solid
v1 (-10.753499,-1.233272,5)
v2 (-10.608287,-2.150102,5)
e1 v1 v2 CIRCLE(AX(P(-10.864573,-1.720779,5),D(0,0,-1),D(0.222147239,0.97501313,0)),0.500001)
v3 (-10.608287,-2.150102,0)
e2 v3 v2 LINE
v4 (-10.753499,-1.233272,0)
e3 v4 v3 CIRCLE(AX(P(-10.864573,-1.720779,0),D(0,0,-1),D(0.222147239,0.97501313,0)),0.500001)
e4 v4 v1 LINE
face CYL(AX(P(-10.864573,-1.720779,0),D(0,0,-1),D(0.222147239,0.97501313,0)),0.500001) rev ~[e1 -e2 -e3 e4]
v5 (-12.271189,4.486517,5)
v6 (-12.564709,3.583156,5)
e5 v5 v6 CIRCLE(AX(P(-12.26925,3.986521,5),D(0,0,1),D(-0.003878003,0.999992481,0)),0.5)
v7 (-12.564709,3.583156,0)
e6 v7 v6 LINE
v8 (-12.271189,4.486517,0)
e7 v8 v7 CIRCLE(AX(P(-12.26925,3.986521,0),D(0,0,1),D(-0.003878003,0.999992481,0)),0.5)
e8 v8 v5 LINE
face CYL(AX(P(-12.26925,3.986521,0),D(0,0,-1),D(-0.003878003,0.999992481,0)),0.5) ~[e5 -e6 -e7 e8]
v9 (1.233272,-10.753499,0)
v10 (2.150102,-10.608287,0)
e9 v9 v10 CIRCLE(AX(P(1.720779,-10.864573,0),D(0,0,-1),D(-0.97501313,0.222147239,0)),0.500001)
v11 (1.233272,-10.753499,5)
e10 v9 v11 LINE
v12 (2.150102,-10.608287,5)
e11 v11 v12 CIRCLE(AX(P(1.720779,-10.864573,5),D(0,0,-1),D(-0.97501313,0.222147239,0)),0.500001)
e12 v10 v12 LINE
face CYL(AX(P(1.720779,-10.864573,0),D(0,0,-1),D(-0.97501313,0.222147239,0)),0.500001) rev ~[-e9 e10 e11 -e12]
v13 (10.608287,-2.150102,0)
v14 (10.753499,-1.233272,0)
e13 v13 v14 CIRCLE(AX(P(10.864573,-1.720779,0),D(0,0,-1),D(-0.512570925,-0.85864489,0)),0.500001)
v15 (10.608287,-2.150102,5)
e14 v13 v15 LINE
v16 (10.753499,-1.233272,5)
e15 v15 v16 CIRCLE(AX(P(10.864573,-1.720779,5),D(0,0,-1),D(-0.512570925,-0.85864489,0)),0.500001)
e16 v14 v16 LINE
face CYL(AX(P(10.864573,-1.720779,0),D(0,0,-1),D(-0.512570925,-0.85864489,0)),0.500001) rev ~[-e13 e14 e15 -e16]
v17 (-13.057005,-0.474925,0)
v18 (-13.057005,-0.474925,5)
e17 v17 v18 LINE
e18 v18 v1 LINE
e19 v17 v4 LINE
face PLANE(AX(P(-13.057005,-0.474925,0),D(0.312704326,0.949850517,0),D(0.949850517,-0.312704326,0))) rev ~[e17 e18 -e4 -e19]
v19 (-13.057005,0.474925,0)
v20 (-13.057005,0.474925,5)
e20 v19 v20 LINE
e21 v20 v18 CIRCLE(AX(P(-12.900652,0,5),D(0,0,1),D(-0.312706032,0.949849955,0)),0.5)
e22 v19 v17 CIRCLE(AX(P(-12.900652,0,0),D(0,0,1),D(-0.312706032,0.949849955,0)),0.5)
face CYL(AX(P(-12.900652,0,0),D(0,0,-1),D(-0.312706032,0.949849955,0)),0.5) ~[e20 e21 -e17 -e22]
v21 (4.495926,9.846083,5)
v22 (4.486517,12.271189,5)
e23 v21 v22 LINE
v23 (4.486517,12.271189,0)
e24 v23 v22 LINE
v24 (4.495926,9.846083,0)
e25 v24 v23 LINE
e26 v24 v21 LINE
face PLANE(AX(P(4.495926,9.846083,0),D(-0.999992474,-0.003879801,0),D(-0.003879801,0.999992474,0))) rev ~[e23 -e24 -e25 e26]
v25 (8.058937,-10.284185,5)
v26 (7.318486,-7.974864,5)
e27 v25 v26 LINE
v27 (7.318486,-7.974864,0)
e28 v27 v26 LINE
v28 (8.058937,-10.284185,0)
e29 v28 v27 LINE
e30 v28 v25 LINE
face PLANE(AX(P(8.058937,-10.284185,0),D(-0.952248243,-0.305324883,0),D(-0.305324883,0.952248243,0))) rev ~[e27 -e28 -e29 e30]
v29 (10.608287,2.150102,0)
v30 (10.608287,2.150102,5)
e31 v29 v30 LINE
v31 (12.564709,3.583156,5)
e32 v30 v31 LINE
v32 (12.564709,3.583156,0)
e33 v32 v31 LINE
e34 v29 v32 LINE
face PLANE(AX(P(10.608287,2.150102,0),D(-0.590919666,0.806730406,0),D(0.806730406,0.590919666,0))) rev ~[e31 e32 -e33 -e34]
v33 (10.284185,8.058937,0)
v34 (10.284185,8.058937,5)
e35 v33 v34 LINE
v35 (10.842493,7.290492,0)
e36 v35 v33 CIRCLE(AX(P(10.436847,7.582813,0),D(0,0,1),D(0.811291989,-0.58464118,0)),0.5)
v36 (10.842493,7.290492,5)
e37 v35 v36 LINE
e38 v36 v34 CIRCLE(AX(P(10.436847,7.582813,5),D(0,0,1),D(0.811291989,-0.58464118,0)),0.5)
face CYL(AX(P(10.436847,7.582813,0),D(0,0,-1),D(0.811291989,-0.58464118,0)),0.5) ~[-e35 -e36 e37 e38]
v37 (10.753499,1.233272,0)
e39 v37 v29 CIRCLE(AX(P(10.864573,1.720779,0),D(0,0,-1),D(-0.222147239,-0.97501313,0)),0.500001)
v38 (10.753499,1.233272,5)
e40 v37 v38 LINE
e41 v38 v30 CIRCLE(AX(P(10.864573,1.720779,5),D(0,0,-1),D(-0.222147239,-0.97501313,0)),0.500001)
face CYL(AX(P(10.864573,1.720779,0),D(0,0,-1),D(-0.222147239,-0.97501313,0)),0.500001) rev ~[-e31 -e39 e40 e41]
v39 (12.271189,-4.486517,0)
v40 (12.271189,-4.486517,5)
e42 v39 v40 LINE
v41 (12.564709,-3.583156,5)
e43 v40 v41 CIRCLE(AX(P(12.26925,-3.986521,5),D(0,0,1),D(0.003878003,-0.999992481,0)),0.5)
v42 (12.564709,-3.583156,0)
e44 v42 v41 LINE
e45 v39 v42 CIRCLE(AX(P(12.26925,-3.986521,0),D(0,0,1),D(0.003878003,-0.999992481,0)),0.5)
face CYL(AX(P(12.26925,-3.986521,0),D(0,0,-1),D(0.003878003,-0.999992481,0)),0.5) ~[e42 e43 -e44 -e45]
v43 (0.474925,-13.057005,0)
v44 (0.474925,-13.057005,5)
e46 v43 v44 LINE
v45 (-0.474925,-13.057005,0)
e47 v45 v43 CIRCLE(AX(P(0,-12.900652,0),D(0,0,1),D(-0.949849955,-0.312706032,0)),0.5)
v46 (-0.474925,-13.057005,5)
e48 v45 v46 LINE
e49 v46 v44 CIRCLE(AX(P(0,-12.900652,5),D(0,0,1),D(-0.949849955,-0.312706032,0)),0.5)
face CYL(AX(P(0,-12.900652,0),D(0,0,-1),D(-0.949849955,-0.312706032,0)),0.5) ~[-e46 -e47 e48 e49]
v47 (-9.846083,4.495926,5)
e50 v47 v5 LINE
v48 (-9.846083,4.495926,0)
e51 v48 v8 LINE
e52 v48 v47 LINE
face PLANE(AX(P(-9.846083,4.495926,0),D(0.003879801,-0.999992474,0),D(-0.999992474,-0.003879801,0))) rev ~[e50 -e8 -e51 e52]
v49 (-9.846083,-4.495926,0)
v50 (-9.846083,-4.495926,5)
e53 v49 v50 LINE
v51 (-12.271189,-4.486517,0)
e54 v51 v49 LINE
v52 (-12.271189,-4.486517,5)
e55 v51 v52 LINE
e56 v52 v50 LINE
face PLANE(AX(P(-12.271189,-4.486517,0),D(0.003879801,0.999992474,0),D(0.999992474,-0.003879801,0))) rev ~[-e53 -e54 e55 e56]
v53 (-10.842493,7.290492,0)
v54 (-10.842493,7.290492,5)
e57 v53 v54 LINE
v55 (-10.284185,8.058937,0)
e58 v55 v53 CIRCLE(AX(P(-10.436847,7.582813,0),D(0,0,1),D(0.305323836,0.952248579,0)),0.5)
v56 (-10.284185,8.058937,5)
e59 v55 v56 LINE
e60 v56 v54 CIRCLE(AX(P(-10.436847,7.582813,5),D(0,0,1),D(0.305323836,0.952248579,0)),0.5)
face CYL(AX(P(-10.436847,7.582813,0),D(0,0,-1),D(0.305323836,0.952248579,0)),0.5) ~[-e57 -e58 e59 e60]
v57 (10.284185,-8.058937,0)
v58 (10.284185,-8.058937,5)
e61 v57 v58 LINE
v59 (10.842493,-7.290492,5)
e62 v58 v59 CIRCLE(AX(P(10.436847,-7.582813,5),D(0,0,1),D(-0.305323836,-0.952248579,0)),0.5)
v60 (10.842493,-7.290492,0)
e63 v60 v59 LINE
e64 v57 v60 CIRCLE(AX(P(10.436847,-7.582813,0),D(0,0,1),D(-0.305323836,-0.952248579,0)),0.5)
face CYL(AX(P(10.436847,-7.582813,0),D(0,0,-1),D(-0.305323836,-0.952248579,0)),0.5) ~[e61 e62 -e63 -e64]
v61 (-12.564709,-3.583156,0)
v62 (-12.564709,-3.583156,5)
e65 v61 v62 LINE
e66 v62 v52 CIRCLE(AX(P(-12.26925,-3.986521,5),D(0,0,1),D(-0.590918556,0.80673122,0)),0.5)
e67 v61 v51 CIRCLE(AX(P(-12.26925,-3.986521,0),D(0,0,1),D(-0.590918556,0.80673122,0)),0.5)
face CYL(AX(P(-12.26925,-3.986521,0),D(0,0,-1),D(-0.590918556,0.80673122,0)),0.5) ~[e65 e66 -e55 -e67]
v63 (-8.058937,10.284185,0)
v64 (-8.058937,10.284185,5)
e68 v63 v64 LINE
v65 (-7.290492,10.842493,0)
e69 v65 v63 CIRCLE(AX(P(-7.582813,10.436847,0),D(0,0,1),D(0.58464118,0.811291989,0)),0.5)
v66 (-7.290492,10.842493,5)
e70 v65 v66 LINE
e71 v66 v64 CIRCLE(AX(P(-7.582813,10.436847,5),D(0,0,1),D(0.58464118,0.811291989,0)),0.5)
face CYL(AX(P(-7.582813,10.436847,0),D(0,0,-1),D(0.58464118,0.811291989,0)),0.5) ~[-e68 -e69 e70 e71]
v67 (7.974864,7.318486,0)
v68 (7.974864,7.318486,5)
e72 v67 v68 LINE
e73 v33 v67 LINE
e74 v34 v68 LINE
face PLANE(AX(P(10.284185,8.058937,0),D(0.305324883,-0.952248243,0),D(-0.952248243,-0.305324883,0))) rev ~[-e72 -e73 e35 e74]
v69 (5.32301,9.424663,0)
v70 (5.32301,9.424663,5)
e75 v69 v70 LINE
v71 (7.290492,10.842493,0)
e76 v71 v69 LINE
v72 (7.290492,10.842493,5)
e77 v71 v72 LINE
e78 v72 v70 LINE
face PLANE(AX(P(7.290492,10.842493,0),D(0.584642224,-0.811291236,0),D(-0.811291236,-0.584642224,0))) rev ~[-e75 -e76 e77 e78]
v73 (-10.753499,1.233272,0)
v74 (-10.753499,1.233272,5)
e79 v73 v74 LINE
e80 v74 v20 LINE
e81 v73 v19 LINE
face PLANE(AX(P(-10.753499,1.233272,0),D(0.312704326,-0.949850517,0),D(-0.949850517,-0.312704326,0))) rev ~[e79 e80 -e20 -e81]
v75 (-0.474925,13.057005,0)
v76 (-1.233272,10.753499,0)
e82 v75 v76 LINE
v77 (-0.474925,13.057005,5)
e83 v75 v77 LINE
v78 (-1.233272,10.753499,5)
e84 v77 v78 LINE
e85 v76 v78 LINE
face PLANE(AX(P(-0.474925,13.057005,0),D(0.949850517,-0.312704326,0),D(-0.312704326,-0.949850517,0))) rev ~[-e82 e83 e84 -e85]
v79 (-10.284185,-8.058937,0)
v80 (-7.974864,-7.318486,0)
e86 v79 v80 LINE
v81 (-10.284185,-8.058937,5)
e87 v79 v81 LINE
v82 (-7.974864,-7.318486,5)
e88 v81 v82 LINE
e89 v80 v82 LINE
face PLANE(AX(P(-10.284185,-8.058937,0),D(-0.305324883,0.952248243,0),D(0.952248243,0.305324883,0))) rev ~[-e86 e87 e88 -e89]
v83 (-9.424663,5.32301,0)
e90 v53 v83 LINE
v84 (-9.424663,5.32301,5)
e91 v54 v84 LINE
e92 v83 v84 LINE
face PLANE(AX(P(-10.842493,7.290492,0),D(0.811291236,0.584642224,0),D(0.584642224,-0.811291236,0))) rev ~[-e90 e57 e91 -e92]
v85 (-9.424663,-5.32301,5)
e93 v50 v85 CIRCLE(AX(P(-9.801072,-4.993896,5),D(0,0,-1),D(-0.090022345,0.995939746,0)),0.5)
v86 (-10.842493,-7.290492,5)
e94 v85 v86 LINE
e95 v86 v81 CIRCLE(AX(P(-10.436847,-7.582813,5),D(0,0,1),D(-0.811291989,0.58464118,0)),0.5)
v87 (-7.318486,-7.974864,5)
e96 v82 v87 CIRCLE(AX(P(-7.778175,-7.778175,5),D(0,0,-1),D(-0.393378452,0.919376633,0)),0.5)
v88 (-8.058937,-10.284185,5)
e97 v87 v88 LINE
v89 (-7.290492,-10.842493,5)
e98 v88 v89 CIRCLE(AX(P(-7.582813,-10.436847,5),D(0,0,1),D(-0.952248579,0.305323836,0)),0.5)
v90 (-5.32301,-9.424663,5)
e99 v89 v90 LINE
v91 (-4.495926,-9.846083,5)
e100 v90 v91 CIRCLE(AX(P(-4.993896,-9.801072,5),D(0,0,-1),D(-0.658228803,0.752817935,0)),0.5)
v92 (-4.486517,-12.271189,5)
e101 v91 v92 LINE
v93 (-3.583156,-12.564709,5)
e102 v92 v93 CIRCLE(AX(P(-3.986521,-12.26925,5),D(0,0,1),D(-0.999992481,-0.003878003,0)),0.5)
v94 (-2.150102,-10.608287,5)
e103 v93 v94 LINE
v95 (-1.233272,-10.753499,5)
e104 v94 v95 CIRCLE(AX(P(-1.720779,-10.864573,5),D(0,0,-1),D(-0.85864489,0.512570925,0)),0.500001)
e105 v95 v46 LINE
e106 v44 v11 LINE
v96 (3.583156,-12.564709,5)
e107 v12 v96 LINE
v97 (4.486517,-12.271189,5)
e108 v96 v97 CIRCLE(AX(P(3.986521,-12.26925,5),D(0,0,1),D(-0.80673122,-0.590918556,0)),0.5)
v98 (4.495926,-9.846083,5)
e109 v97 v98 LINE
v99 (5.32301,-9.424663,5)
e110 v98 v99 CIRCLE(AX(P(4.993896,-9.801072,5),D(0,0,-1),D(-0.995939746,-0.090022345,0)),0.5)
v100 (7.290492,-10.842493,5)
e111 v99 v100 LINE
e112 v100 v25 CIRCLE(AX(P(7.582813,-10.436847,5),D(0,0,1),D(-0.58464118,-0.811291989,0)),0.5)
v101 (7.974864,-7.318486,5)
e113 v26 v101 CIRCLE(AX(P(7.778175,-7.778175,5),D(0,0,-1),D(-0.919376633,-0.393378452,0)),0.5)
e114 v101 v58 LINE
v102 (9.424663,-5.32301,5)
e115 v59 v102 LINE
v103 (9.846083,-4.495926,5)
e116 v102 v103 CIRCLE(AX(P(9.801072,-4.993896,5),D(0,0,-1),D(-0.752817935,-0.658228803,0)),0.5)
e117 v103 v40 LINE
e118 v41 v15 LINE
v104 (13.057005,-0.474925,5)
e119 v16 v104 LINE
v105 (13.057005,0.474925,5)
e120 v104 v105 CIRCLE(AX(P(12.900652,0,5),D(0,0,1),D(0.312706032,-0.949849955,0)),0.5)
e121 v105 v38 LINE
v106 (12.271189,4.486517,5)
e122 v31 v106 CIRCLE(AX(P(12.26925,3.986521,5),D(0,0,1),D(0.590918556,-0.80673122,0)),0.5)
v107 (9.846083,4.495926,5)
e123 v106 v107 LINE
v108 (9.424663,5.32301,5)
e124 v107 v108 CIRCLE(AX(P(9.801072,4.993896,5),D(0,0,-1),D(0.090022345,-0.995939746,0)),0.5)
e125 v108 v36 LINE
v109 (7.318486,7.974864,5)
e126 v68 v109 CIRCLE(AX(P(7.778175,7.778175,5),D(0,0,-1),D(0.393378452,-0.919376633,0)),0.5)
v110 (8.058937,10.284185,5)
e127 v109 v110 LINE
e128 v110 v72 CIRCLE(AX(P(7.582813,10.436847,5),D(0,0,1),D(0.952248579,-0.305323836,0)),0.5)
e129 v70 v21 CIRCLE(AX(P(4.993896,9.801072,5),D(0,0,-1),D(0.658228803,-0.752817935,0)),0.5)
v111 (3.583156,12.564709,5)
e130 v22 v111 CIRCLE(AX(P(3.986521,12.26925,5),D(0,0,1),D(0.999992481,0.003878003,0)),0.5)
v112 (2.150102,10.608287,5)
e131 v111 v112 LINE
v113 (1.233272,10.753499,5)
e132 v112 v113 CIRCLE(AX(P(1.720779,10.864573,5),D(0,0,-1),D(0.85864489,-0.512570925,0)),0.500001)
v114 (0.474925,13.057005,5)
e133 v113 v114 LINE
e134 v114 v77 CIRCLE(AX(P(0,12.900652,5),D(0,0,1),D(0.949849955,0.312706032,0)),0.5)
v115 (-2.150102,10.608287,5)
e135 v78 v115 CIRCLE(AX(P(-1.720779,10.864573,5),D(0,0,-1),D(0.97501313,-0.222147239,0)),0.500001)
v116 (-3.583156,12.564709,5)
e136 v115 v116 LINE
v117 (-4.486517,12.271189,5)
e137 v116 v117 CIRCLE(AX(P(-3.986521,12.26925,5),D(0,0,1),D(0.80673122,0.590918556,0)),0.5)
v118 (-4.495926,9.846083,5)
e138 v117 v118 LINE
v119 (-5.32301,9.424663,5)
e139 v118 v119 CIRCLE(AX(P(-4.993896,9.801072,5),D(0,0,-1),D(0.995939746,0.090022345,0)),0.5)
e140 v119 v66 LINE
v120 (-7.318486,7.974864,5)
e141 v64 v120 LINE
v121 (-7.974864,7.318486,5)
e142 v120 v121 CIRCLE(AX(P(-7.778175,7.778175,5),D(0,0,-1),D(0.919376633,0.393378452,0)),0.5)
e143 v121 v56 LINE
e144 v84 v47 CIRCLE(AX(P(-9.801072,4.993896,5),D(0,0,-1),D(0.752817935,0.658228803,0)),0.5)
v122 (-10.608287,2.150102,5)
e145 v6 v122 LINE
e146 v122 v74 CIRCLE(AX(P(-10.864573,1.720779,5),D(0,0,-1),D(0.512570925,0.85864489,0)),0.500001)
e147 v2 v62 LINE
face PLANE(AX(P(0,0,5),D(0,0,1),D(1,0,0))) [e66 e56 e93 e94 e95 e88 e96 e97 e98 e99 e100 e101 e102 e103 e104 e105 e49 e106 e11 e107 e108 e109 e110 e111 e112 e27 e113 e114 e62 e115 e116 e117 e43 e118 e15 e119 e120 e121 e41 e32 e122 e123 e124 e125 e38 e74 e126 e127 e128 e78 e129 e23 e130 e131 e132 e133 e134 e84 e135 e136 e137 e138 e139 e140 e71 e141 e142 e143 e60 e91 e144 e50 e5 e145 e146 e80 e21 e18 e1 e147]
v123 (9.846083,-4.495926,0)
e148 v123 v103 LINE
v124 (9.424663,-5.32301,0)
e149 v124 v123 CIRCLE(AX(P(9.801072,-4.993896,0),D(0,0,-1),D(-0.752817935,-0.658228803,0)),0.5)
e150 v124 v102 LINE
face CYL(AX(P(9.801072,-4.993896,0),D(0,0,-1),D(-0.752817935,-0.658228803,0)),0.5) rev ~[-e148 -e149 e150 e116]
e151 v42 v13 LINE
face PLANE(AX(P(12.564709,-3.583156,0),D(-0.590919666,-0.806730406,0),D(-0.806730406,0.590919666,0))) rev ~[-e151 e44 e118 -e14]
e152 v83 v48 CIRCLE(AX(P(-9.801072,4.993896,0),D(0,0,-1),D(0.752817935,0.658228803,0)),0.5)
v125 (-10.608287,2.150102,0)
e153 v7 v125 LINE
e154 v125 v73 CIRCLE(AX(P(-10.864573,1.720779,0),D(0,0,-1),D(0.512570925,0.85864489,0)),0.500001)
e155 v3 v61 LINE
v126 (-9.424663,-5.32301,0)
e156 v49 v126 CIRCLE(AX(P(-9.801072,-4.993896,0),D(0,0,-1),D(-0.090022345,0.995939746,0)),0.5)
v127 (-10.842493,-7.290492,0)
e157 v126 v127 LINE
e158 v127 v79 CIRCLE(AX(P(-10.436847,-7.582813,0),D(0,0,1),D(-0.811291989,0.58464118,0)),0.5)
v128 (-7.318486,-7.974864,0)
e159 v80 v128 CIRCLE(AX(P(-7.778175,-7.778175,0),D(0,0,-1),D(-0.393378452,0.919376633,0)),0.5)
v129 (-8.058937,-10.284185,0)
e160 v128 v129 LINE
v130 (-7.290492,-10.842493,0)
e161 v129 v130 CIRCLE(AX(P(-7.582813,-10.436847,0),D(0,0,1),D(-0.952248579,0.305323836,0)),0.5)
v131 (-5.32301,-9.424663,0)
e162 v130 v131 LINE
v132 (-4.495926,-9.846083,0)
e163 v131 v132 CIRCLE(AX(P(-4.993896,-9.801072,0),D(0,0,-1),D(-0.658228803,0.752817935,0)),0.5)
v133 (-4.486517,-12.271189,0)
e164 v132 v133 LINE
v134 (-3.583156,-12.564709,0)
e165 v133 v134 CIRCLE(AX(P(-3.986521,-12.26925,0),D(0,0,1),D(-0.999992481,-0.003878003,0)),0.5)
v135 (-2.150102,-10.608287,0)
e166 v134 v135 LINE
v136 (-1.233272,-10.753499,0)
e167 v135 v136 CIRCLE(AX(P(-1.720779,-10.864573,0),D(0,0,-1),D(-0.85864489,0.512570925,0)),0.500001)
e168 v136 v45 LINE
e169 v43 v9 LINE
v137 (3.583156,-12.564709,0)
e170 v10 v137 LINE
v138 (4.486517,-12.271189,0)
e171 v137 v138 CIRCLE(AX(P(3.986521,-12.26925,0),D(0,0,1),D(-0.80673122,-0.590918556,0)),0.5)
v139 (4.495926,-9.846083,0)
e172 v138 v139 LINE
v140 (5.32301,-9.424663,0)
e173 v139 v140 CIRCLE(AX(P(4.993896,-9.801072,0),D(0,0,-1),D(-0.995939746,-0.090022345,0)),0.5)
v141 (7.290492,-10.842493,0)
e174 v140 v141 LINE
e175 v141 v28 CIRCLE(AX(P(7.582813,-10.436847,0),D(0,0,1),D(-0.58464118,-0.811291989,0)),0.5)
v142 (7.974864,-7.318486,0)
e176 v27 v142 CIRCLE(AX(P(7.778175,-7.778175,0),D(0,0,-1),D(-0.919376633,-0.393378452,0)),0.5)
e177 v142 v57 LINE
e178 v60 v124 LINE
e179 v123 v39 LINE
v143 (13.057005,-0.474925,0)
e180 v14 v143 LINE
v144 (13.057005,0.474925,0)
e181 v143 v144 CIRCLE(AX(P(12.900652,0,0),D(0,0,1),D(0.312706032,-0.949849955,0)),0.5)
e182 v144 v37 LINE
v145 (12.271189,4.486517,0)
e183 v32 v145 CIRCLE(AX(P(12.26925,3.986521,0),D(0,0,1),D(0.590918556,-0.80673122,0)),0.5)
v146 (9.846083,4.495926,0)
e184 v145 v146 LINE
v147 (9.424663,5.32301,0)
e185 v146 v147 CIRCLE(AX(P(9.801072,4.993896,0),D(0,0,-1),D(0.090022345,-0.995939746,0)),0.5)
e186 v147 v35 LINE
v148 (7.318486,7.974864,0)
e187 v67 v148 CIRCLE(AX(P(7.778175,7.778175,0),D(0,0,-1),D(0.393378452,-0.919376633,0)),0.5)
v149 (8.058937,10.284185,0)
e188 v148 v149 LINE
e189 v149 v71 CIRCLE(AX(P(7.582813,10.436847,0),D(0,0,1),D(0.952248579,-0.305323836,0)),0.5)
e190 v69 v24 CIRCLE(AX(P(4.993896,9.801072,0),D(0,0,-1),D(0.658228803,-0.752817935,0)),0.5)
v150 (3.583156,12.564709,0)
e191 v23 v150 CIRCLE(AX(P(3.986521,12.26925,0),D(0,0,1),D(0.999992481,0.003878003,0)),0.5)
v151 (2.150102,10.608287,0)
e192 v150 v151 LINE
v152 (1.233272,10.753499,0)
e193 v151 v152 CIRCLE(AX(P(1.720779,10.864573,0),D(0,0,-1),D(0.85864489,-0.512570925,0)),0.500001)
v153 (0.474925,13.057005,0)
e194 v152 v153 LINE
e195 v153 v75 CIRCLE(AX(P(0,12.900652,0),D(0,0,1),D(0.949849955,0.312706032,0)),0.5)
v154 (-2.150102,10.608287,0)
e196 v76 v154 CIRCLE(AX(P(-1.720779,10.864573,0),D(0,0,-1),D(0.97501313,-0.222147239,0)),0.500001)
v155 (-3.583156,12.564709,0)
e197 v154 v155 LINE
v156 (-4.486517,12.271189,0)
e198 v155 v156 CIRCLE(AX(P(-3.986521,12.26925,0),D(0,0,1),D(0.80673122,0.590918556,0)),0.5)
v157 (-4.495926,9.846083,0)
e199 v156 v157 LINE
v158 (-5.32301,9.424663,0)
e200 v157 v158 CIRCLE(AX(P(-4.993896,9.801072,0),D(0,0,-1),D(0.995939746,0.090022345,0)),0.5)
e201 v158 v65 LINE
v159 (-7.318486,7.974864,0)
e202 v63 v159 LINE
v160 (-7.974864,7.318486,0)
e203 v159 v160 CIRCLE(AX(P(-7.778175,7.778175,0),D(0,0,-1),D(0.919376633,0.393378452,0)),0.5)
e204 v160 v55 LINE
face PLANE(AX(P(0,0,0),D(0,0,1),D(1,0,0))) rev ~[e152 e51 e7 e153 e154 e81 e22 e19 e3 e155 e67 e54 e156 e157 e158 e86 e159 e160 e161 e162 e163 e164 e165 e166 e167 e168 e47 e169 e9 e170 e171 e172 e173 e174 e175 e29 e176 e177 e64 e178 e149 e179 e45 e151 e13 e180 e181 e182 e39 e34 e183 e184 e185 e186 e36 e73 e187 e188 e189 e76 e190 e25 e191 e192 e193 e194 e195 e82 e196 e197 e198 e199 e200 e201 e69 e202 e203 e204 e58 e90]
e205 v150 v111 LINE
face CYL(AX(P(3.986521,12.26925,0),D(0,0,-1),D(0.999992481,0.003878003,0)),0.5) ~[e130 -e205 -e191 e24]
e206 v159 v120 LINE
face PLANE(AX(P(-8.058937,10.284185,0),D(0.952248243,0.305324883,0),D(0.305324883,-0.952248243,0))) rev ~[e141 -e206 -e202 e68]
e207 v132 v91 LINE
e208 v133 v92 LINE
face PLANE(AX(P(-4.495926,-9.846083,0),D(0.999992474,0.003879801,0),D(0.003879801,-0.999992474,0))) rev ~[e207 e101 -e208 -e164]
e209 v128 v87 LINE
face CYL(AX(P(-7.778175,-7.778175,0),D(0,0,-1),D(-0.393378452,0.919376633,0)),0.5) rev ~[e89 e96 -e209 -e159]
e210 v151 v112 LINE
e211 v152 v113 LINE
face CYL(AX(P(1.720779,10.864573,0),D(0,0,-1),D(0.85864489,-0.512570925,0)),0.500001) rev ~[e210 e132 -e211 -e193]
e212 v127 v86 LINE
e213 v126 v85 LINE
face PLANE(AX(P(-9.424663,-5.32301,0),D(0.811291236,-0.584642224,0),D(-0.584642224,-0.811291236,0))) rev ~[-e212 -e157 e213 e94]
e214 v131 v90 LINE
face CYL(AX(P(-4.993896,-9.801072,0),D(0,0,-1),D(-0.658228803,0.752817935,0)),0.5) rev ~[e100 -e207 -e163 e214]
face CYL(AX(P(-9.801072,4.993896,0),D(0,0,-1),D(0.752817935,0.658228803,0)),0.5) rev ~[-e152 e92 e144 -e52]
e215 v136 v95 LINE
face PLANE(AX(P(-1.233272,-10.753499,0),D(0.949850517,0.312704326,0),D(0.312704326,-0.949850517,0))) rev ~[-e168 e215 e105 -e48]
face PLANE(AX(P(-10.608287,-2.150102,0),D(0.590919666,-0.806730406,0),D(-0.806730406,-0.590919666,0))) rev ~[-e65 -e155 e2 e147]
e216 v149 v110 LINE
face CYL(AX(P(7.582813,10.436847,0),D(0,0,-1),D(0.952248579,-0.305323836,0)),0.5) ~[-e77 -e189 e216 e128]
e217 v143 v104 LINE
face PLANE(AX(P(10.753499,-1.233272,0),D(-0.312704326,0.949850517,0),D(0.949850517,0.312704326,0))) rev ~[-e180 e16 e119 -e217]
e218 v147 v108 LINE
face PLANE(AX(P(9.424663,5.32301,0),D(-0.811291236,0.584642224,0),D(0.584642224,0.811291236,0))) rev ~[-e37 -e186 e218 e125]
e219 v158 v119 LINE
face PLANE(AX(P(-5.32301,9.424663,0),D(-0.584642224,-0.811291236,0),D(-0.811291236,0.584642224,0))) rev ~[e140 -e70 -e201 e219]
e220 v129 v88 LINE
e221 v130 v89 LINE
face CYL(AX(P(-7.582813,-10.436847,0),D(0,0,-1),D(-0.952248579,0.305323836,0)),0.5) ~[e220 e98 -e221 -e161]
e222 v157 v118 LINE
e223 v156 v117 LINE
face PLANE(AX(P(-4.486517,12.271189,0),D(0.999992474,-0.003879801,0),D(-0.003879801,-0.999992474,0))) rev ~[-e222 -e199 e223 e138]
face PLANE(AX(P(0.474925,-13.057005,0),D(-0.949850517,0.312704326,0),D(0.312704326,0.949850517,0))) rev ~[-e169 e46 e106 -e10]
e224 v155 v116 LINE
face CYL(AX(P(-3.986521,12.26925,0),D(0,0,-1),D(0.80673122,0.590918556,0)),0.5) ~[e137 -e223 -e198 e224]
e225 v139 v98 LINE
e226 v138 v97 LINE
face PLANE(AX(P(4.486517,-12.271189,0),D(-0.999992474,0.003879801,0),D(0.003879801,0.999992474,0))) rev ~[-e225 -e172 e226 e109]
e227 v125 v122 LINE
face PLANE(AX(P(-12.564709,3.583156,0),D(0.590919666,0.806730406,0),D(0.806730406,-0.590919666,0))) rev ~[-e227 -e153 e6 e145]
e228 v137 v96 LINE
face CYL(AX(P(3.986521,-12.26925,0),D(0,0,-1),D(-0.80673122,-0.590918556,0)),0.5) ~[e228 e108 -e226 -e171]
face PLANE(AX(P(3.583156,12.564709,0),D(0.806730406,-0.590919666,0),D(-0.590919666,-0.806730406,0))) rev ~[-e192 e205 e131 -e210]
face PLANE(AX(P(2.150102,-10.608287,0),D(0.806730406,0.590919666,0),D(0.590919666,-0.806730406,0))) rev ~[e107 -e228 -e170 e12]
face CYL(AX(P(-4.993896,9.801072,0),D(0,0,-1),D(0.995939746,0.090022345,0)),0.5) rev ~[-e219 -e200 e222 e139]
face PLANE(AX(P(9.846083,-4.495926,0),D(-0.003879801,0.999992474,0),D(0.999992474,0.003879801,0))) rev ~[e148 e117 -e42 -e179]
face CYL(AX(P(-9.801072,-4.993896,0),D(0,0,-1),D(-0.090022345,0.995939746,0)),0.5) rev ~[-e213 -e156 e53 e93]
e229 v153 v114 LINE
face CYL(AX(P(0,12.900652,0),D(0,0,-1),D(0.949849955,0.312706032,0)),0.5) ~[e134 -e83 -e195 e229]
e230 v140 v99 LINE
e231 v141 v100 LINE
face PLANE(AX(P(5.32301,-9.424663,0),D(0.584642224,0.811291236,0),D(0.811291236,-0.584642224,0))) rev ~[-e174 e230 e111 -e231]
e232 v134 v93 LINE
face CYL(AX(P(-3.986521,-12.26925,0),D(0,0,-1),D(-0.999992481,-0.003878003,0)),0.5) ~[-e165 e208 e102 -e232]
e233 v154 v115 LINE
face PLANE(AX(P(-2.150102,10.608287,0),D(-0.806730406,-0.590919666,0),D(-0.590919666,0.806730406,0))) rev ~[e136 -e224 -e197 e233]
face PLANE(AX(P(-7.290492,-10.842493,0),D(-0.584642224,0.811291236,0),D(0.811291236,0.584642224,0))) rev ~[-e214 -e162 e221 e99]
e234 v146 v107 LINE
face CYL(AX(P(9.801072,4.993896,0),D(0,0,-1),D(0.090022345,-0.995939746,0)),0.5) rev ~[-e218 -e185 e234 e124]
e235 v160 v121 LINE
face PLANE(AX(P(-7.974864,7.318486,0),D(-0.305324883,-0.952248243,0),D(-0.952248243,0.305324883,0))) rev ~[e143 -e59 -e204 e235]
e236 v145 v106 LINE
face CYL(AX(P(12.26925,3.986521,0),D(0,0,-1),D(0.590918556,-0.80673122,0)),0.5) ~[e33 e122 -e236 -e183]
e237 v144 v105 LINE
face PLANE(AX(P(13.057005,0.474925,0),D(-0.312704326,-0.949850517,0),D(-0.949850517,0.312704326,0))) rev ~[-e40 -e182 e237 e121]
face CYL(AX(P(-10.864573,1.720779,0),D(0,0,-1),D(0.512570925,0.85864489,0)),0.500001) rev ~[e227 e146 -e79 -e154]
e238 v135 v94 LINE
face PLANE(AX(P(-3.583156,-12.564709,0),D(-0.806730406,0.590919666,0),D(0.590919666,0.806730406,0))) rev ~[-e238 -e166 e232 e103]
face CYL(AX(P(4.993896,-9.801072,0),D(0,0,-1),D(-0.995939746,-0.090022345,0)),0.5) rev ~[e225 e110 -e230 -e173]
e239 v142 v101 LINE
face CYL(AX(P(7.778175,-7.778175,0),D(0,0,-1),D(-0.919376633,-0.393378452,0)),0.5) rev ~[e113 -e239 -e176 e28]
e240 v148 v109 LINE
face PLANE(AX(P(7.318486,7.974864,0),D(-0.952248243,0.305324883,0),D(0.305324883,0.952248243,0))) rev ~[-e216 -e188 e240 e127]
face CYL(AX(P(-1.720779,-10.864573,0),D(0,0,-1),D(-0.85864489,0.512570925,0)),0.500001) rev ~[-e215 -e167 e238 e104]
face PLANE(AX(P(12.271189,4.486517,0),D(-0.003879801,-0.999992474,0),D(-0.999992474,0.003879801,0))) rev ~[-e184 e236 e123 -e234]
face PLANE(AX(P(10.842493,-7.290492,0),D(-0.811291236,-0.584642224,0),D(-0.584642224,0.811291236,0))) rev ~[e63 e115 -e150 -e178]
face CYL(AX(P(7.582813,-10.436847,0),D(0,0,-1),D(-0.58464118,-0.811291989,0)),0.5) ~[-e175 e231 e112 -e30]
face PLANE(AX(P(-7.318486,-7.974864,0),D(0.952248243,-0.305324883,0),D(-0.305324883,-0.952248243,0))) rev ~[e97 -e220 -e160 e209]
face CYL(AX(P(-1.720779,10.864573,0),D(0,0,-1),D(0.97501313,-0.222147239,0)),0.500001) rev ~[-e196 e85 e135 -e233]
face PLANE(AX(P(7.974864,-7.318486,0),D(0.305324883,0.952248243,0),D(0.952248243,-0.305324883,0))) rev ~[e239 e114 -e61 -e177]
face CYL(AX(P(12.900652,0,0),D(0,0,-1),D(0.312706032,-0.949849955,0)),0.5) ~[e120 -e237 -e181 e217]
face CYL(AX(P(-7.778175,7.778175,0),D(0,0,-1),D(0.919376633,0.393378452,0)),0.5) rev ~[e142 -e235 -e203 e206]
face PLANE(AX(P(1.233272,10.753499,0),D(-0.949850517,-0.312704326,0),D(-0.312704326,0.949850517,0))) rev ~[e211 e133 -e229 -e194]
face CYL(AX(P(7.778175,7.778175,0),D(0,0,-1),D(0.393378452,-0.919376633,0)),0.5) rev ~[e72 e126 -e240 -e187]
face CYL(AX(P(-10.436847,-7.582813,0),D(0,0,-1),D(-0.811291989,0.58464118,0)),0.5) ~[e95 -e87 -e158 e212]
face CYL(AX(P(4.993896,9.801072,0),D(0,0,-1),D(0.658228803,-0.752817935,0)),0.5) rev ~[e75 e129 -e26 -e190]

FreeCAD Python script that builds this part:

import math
import FreeCAD as App
import Part
import Sketcher
Q = App.Units.Quantity

doc = App.newDocument("Part")
body = doc.addObject("PartDesign::Body", "Body")

# Sketch on XY plane
sketch1 = body.newObject("Sketcher::SketchObject", "Sketch")
sketch1.AttachmentSupport = (doc.getObject("XY_Plane"), [""])
sketch1.MapMode = "FlatFace"
sketch1.addGeometry([
    Part.LineSegment(App.Vector(-0.47, 13.06, 0), App.Vector(-1.23, 10.75, 0)),  # 0
    Part.ArcOfCircle(Part.Circle(App.Vector(-1.72, 10.86, 0), App.Vector(0, 0, 1), 0.5), math.radians(-149), math.radians(-13)),  # 1
    Part.LineSegment(App.Vector(-2.15, 10.61, 0), App.Vector(-3.58, 12.56, 0)),  # 2
    Part.ArcOfCircle(Part.Circle(App.Vector(-3.99, 12.27, 0), App.Vector(0, 0, 1), 0.5), math.radians(36), math.radians(180)),  # 3
    Part.LineSegment(App.Vector(-4.49, 12.27, 0), App.Vector(-4.5, 9.85, 0)),  # 4
    Part.ArcOfCircle(Part.Circle(App.Vector(-4.99, 9.8, 0), App.Vector(0, 0, 1), 0.5), math.radians(-131), math.radians(5)),  # 5
    Part.LineSegment(App.Vector(-5.32, 9.42, 0), App.Vector(-7.29, 10.84, 0)),  # 6
    Part.ArcOfCircle(Part.Circle(App.Vector(-7.58, 10.44, 0), App.Vector(0, 0, 1), 0.5), math.radians(54), math.radians(198)),  # 7
    Part.LineSegment(App.Vector(-8.06, 10.28, 0), App.Vector(-7.32, 7.97, 0)),  # 8
    Part.ArcOfCircle(Part.Circle(App.Vector(-7.78, 7.78, 0), App.Vector(0, 0, 1), 0.5), math.radians(-113), math.radians(23)),  # 9
    Part.LineSegment(App.Vector(-7.97, 7.32, 0), App.Vector(-10.28, 8.06, 0)),  # 10
    Part.ArcOfCircle(Part.Circle(App.Vector(-10.44, 7.58, 0), App.Vector(0, 0, 1), 0.5), math.radians(72), math.radians(216)),  # 11
    Part.LineSegment(App.Vector(-10.84, 7.29, 0), App.Vector(-9.42, 5.32, 0)),  # 12
    Part.ArcOfCircle(Part.Circle(App.Vector(-9.8, 4.99, 0), App.Vector(0, 0, 1), 0.5), math.radians(-95), math.radians(41)),  # 13
    Part.LineSegment(App.Vector(-9.85, 4.5, 0), App.Vector(-12.27, 4.49, 0)),  # 14
    Part.ArcOfCircle(Part.Circle(App.Vector(-12.27, 3.99, 0), App.Vector(0, 0, 1), 0.5), math.radians(90), math.radians(234)),  # 15
    Part.LineSegment(App.Vector(-12.56, 3.58, 0), App.Vector(-10.61, 2.15, 0)),  # 16
    Part.ArcOfCircle(Part.Circle(App.Vector(-10.86, 1.72, 0), App.Vector(0, 0, 1), 0.5), math.radians(-77), math.radians(59)),  # 17
    Part.LineSegment(App.Vector(-10.75, 1.23, 0), App.Vector(-13.06, 0.47, 0)),  # 18
    Part.ArcOfCircle(Part.Circle(App.Vector(-12.9, 0, 0), App.Vector(0, 0, 1), 0.5), math.radians(108), math.radians(252)),  # 19
    Part.LineSegment(App.Vector(-13.06, -0.47, 0), App.Vector(-10.75, -1.23, 0)),  # 20
    Part.ArcOfCircle(Part.Circle(App.Vector(-10.86, -1.72, 0), App.Vector(0, 0, 1), 0.5), math.radians(-59), math.radians(77)),  # 21
    Part.LineSegment(App.Vector(-10.61, -2.15, 0), App.Vector(-12.56, -3.58, 0)),  # 22
    Part.ArcOfCircle(Part.Circle(App.Vector(-12.27, -3.99, 0), App.Vector(0, 0, 1), 0.5), math.radians(126), math.radians(270)),  # 23
    Part.LineSegment(App.Vector(-12.27, -4.49, 0), App.Vector(-9.85, -4.5, 0)),  # 24
    Part.ArcOfCircle(Part.Circle(App.Vector(-9.8, -4.99, 0), App.Vector(0, 0, 1), 0.5), math.radians(-41), math.radians(95)),  # 25
    Part.LineSegment(App.Vector(-9.42, -5.32, 0), App.Vector(-10.84, -7.29, 0)),  # 26
    Part.ArcOfCircle(Part.Circle(App.Vector(-10.44, -7.58, 0), App.Vector(0, 0, 1), 0.5), math.radians(144), math.radians(288)),  # 27
    Part.LineSegment(App.Vector(-10.28, -8.06, 0), App.Vector(-7.97, -7.32, 0)),  # 28
    Part.ArcOfCircle(Part.Circle(App.Vector(-7.78, -7.78, 0), App.Vector(0, 0, 1), 0.5), math.radians(-23), math.radians(113)),  # 29
    Part.LineSegment(App.Vector(-7.32, -7.97, 0), App.Vector(-8.06, -10.28, 0)),  # 30
    Part.ArcOfCircle(Part.Circle(App.Vector(-7.58, -10.44, 0), App.Vector(0, 0, 1), 0.5), math.radians(162), math.radians(306)),  # 31
    Part.LineSegment(App.Vector(-7.29, -10.84, 0), App.Vector(-5.32, -9.42, 0)),  # 32
    Part.ArcOfCircle(Part.Circle(App.Vector(-4.99, -9.8, 0), App.Vector(0, 0, 1), 0.5), math.radians(-5), math.radians(131)),  # 33
    Part.LineSegment(App.Vector(-4.5, -9.85, 0), App.Vector(-4.49, -12.27, 0)),  # 34
    Part.ArcOfCircle(Part.Circle(App.Vector(-3.99, -12.27, 0), App.Vector(0, 0, 1), 0.5), math.radians(-180), math.radians(-36)),  # 35
    Part.LineSegment(App.Vector(-3.58, -12.56, 0), App.Vector(-2.15, -10.61, 0)),  # 36
    Part.ArcOfCircle(Part.Circle(App.Vector(-1.72, -10.86, 0), App.Vector(0, 0, 1), 0.5), math.radians(13), math.radians(149)),  # 37
    Part.LineSegment(App.Vector(-1.23, -10.75, 0), App.Vector(-0.47, -13.06, 0)),  # 38
    Part.ArcOfCircle(Part.Circle(App.Vector(0, -12.9, 0), App.Vector(0, 0, 1), 0.5), math.radians(-162), math.radians(-18)),  # 39
    Part.LineSegment(App.Vector(0.47, -13.06, 0), App.Vector(1.23, -10.75, 0)),  # 40
    Part.ArcOfCircle(Part.Circle(App.Vector(1.72, -10.86, 0), App.Vector(0, 0, 1), 0.5), math.radians(31), math.radians(167)),  # 41
    Part.LineSegment(App.Vector(2.15, -10.61, 0), App.Vector(3.58, -12.56, 0)),  # 42
    Part.ArcOfCircle(Part.Circle(App.Vector(3.99, -12.27, 0), App.Vector(0, 0, 1), 0.5), math.radians(-144), math.radians(0)),  # 43
    Part.LineSegment(App.Vector(4.49, -12.27, 0), App.Vector(4.5, -9.85, 0)),  # 44
    Part.ArcOfCircle(Part.Circle(App.Vector(4.99, -9.8, 0), App.Vector(0, 0, 1), 0.5), math.radians(49), math.radians(185)),  # 45
    Part.LineSegment(App.Vector(5.32, -9.42, 0), App.Vector(7.29, -10.84, 0)),  # 46
    Part.ArcOfCircle(Part.Circle(App.Vector(7.58, -10.44, 0), App.Vector(0, 0, 1), 0.5), math.radians(-126), math.radians(18)),  # 47
    Part.LineSegment(App.Vector(8.06, -10.28, 0), App.Vector(7.32, -7.97, 0)),  # 48
    Part.ArcOfCircle(Part.Circle(App.Vector(7.78, -7.78, 0), App.Vector(0, 0, 1), 0.5), math.radians(67), math.radians(203)),  # 49
    Part.LineSegment(App.Vector(7.97, -7.32, 0), App.Vector(10.28, -8.06, 0)),  # 50
    Part.ArcOfCircle(Part.Circle(App.Vector(10.44, -7.58, 0), App.Vector(0, 0, 1), 0.5), math.radians(-108), math.radians(36)),  # 51
    Part.LineSegment(App.Vector(10.84, -7.29, 0), App.Vector(9.42, -5.32, 0)),  # 52
    Part.ArcOfCircle(Part.Circle(App.Vector(9.8, -4.99, 0), App.Vector(0, 0, 1), 0.5), math.radians(85), math.radians(221)),  # 53
    Part.LineSegment(App.Vector(9.85, -4.5, 0), App.Vector(12.27, -4.49, 0)),  # 54
    Part.ArcOfCircle(Part.Circle(App.Vector(12.27, -3.99, 0), App.Vector(0, 0, 1), 0.5), math.radians(-90), math.radians(54)),  # 55
    Part.LineSegment(App.Vector(12.56, -3.58, 0), App.Vector(10.61, -2.15, 0)),  # 56
    Part.ArcOfCircle(Part.Circle(App.Vector(10.86, -1.72, 0), App.Vector(0, 0, 1), 0.5), math.radians(103), math.radians(239)),  # 57
    Part.LineSegment(App.Vector(10.75, -1.23, 0), App.Vector(13.06, -0.47, 0)),  # 58
    Part.ArcOfCircle(Part.Circle(App.Vector(12.9, 0, 0), App.Vector(0, 0, 1), 0.5), math.radians(-72), math.radians(72)),  # 59
    Part.LineSegment(App.Vector(13.06, 0.47, 0), App.Vector(10.75, 1.23, 0)),  # 60
    Part.ArcOfCircle(Part.Circle(App.Vector(10.86, 1.72, 0), App.Vector(0, 0, 1), 0.5), math.radians(121), math.radians(257)),  # 61
    Part.LineSegment(App.Vector(10.61, 2.15, 0), App.Vector(12.56, 3.58, 0)),  # 62
    Part.ArcOfCircle(Part.Circle(App.Vector(12.27, 3.99, 0), App.Vector(0, 0, 1), 0.5), math.radians(-54), math.radians(90)),  # 63
    Part.LineSegment(App.Vector(12.27, 4.49, 0), App.Vector(9.85, 4.5, 0)),  # 64
    Part.ArcOfCircle(Part.Circle(App.Vector(9.8, 4.99, 0), App.Vector(0, 0, 1), 0.5), math.radians(139), math.radians(275)),  # 65
    Part.LineSegment(App.Vector(9.42, 5.32, 0), App.Vector(10.84, 7.29, 0)),  # 66
    Part.ArcOfCircle(Part.Circle(App.Vector(10.44, 7.58, 0), App.Vector(0, 0, 1), 0.5), math.radians(-36), math.radians(108)),  # 67
    Part.LineSegment(App.Vector(10.28, 8.06, 0), App.Vector(7.97, 7.32, 0)),  # 68
    Part.ArcOfCircle(Part.Circle(App.Vector(7.78, 7.78, 0), App.Vector(0, 0, 1), 0.5), math.radians(157), math.radians(293)),  # 69
    Part.LineSegment(App.Vector(7.32, 7.97, 0), App.Vector(8.06, 10.28, 0)),  # 70
    Part.ArcOfCircle(Part.Circle(App.Vector(7.58, 10.44, 0), App.Vector(0, 0, 1), 0.5), math.radians(-18), math.radians(126)),  # 71
    Part.LineSegment(App.Vector(7.29, 10.84, 0), App.Vector(5.32, 9.42, 0)),  # 72
    Part.ArcOfCircle(Part.Circle(App.Vector(4.99, 9.8, 0), App.Vector(0, 0, 1), 0.5), math.radians(175), math.radians(311)),  # 73
    Part.LineSegment(App.Vector(4.5, 9.85, 0), App.Vector(4.49, 12.27, 0)),  # 74
    Part.ArcOfCircle(Part.Circle(App.Vector(3.99, 12.27, 0), App.Vector(0, 0, 1), 0.5), math.radians(0), math.radians(144)),  # 75
    Part.LineSegment(App.Vector(3.58, 12.56, 0), App.Vector(2.15, 10.61, 0)),  # 76
    Part.ArcOfCircle(Part.Circle(App.Vector(1.72, 10.86, 0), App.Vector(0, 0, 1), 0.5), math.radians(-167), math.radians(-31)),  # 77
    Part.LineSegment(App.Vector(1.23, 10.75, 0), App.Vector(0.47, 13.06, 0)),  # 78
    Part.ArcOfCircle(Part.Circle(App.Vector(0, 12.9, 0), App.Vector(0, 0, 1), 0.5), math.radians(18), math.radians(162)),  # 79
], False)
sketch1.addConstraint([
    Sketcher.Constraint("Coincident", 0, 2, 1, 2),
    Sketcher.Constraint("Coincident", 1, 1, 2, 1),
    Sketcher.Constraint("Tangent", 2, 2, 3, 1),
    Sketcher.Constraint("Tangent", 3, 2, 4, 1),
    Sketcher.Constraint("Coincident", 4, 2, 5, 2),
    Sketcher.Constraint("Coincident", 5, 1, 6, 1),
    Sketcher.Constraint("Tangent", 6, 2, 7, 1),
    Sketcher.Constraint("Tangent", 7, 2, 8, 1),
    Sketcher.Constraint("Coincident", 8, 2, 9, 2),
    Sketcher.Constraint("Coincident", 9, 1, 10, 1),
    Sketcher.Constraint("Tangent", 10, 2, 11, 1),
    Sketcher.Constraint("Tangent", 11, 2, 12, 1),
    Sketcher.Constraint("Coincident", 12, 2, 13, 2),
    Sketcher.Constraint("Coincident", 13, 1, 14, 1),
    Sketcher.Constraint("Tangent", 14, 2, 15, 1),
    Sketcher.Constraint("Tangent", 15, 2, 16, 1),
    Sketcher.Constraint("Coincident", 16, 2, 17, 2),
    Sketcher.Constraint("Coincident", 17, 1, 18, 1),
    Sketcher.Constraint("Tangent", 18, 2, 19, 1),
    Sketcher.Constraint("Tangent", 19, 2, 20, 1),
    Sketcher.Constraint("Coincident", 20, 2, 21, 2),
    Sketcher.Constraint("Coincident", 21, 1, 22, 1),
    Sketcher.Constraint("Tangent", 22, 2, 23, 1),
    Sketcher.Constraint("Tangent", 23, 2, 24, 1),
    Sketcher.Constraint("Coincident", 24, 2, 25, 2),
    Sketcher.Constraint("Coincident", 25, 1, 26, 1),
    Sketcher.Constraint("Tangent", 26, 2, 27, 1),
    Sketcher.Constraint("Tangent", 27, 2, 28, 1),
    Sketcher.Constraint("Coincident", 28, 2, 29, 2),
    Sketcher.Constraint("Coincident", 29, 1, 30, 1),
    Sketcher.Constraint("Tangent", 30, 2, 31, 1),
    Sketcher.Constraint("Tangent", 31, 2, 32, 1),
    Sketcher.Constraint("Coincident", 32, 2, 33, 2),
    Sketcher.Constraint("Coincident", 33, 1, 34, 1),
    Sketcher.Constraint("Tangent", 34, 2, 35, 1),
    Sketcher.Constraint("Tangent", 35, 2, 36, 1),
    Sketcher.Constraint("Coincident", 36, 2, 37, 2),
    Sketcher.Constraint("Coincident", 37, 1, 38, 1),
    Sketcher.Constraint("Tangent", 38, 2, 39, 1),
    Sketcher.Constraint("Tangent", 39, 2, 40, 1),
    Sketcher.Constraint("Coincident", 40, 2, 41, 2),
    Sketcher.Constraint("Coincident", 41, 1, 42, 1),
    Sketcher.Constraint("Tangent", 42, 2, 43, 1),
    Sketcher.Constraint("Tangent", 43, 2, 44, 1),
    Sketcher.Constraint("Coincident", 44, 2, 45, 2),
    Sketcher.Constraint("Coincident", 45, 1, 46, 1),
    Sketcher.Constraint("Tangent", 46, 2, 47, 1),
    Sketcher.Constraint("Tangent", 47, 2, 48, 1),
    Sketcher.Constraint("Coincident", 48, 2, 49, 2),
    Sketcher.Constraint("Coincident", 49, 1, 50, 1),
    Sketcher.Constraint("Tangent", 50, 2, 51, 1),
    Sketcher.Constraint("Tangent", 51, 2, 52, 1),
    Sketcher.Constraint("Coincident", 52, 2, 53, 2),
    Sketcher.Constraint("Coincident", 53, 1, 54, 1),
    Sketcher.Constraint("Tangent", 54, 2, 55, 1),
    Sketcher.Constraint("Tangent", 55, 2, 56, 1),
    Sketcher.Constraint("Coincident", 56, 2, 57, 2),
    Sketcher.Constraint("Coincident", 57, 1, 58, 1),
    Sketcher.Constraint("Tangent", 58, 2, 59, 1),
    Sketcher.Constraint("Tangent", 59, 2, 60, 1),
    Sketcher.Constraint("Coincident", 60, 2, 61, 2),
    Sketcher.Constraint("Coincident", 61, 1, 62, 1),
    Sketcher.Constraint("Tangent", 62, 2, 63, 1),
    Sketcher.Constraint("Tangent", 63, 2, 64, 1),
    Sketcher.Constraint("Coincident", 64, 2, 65, 2),
    Sketcher.Constraint("Coincident", 65, 1, 66, 1),
    Sketcher.Constraint("Tangent", 66, 2, 67, 1),
    Sketcher.Constraint("Tangent", 67, 2, 68, 1),
    Sketcher.Constraint("Coincident", 68, 2, 69, 2),
    Sketcher.Constraint("Coincident", 69, 1, 70, 1),
    Sketcher.Constraint("Tangent", 70, 2, 71, 1),
    Sketcher.Constraint("Tangent", 71, 2, 72, 1),
    Sketcher.Constraint("Coincident", 72, 2, 73, 2),
    Sketcher.Constraint("Coincident", 73, 1, 74, 1),
    Sketcher.Constraint("Tangent", 74, 2, 75, 1),
    Sketcher.Constraint("Tangent", 75, 2, 76, 1),
    Sketcher.Constraint("Coincident", 76, 2, 77, 2),
    Sketcher.Constraint("Coincident", 77, 1, 78, 1),
    Sketcher.Constraint("Tangent", 78, 2, 79, 1),
    Sketcher.Constraint("Tangent", 79, 2, 0, 1),
    Sketcher.Constraint("Equal", 1, 3),
    Sketcher.Constraint("Equal", 3, 5),
    Sketcher.Constraint("Equal", 5, 7),
    Sketcher.Constraint("Equal", 7, 9),
    Sketcher.Constraint("Equal", 9, 11),
    Sketcher.Constraint("Equal", 11, 13),
    Sketcher.Constraint("Equal", 13, 15),
    Sketcher.Constraint("Equal", 15, 17),
    Sketcher.Constraint("Equal", 17, 19),
    Sketcher.Constraint("Equal", 19, 21),
    Sketcher.Constraint("Equal", 21, 23),
    Sketcher.Constraint("Equal", 23, 25),
    Sketcher.Constraint("Equal", 25, 27),
    Sketcher.Constraint("Equal", 27, 29),
    Sketcher.Constraint("Equal", 29, 31),
    Sketcher.Constraint("Equal", 31, 33),
    Sketcher.Constraint("Equal", 33, 35),
    Sketcher.Constraint("Equal", 35, 37),
    Sketcher.Constraint("Equal", 37, 39),
    Sketcher.Constraint("Equal", 39, 41),
    Sketcher.Constraint("Equal", 41, 43),
    Sketcher.Constraint("Equal", 43, 45),
    Sketcher.Constraint("Equal", 45, 47),
    Sketcher.Constraint("Equal", 47, 49),
    Sketcher.Constraint("Equal", 49, 51),
    Sketcher.Constraint("Equal", 51, 53),
    Sketcher.Constraint("Equal", 53, 55),
    Sketcher.Constraint("Equal", 55, 57),
    Sketcher.Constraint("Equal", 57, 59),
    Sketcher.Constraint("Equal", 59, 61),
    Sketcher.Constraint("Equal", 61, 63),
    Sketcher.Constraint("Equal", 63, 65),
    Sketcher.Constraint("Equal", 65, 67),
    Sketcher.Constraint("Equal", 67, 69),
    Sketcher.Constraint("Equal", 69, 71),
    Sketcher.Constraint("Equal", 71, 73),
    Sketcher.Constraint("Equal", 73, 75),
    Sketcher.Constraint("Equal", 75, 77),
    Sketcher.Constraint("Equal", 77, 79),
    Sketcher.Constraint("Symmetric", 1, 3, 41, 3, -1, 1),
    Sketcher.Constraint("Symmetric", 3, 3, 43, 3, -1, 1),
    Sketcher.Constraint("Symmetric", 5, 3, 45, 3, -1, 1),
    Sketcher.Constraint("Symmetric", 7, 3, 47, 3, -1, 1),
    Sketcher.Constraint("Symmetric", 9, 3, 49, 3, -1, 1),
    Sketcher.Constraint("Symmetric", 11, 3, 51, 3, -1, 1),
    Sketcher.Constraint("Symmetric", 13, 3, 53, 3, -1, 1),
    Sketcher.Constraint("Symmetric", 15, 3, 55, 3, -1, 1),
    Sketcher.Constraint("Symmetric", 17, 3, 57, 3, -1, 1),
    Sketcher.Constraint("Symmetric", 19, 3, 59, 3, -1, 1),
    Sketcher.Constraint("Symmetric", 21, 3, 61, 3, -1, 1),
    Sketcher.Constraint("Symmetric", 23, 3, 63, 3, -1, 1),
    Sketcher.Constraint("Symmetric", 25, 3, 65, 3, -1, 1),
    Sketcher.Constraint("Symmetric", 27, 3, 67, 3, -1, 1),
    Sketcher.Constraint("Symmetric", 29, 3, 69, 3, -1, 1),
    Sketcher.Constraint("Symmetric", 31, 3, 71, 3, -1, 1),
    Sketcher.Constraint("Symmetric", 33, 3, 73, 3, -1, 1),
    Sketcher.Constraint("Symmetric", 35, 3, 75, 3, -1, 1),
    Sketcher.Constraint("Symmetric", 37, 3, 77, 3, -1, 1),
    Sketcher.Constraint("Symmetric", 39, 3, 79, 3, -1, 1),
    Sketcher.Constraint("Symmetric", 37, 3, 41, 3, -2),
    Sketcher.Constraint("Symmetric", 35, 3, 43, 3, -2),
    Sketcher.Constraint("Symmetric", 33, 3, 45, 3, -2),
    Sketcher.Constraint("Symmetric", 31, 3, 47, 3, -2),
    Sketcher.Constraint("Symmetric", 29, 3, 49, 3, -2),
    Sketcher.Constraint("Symmetric", 27, 3, 51, 3, -2),
    Sketcher.Constraint("Symmetric", 25, 3, 53, 3, -2),
    Sketcher.Constraint("Symmetric", 23, 3, 55, 3, -2),
    Sketcher.Constraint("Symmetric", 21, 3, 57, 3, -2),
    Sketcher.Constraint("Symmetric", 38, 2, 39, 2, -2),
    Sketcher.Constraint("Symmetric", 19, 2, 58, 2, -2),
    Sketcher.Constraint("Perpendicular", 0, 20),
    Sketcher.Constraint("Perpendicular", 2, 22),
    Sketcher.Constraint("Perpendicular", 4, 24),
    Sketcher.Constraint("Perpendicular", 6, 26),
    Sketcher.Constraint("Perpendicular", 8, 28),
    Sketcher.Constraint("Perpendicular", 10, 30),
    Sketcher.Constraint("Perpendicular", 12, 32),
    Sketcher.Constraint("Perpendicular", 14, 34),
    Sketcher.Constraint("Perpendicular", 16, 36),
    Sketcher.Constraint("Perpendicular", 18, 38),
    Sketcher.Constraint("Perpendicular", 20, 40),
    Sketcher.Constraint("Perpendicular", 22, 42),
    Sketcher.Constraint("Perpendicular", 24, 44),
    Sketcher.Constraint("Perpendicular", 26, 46),
    Sketcher.Constraint("Perpendicular", 28, 48),
    Sketcher.Constraint("Perpendicular", 30, 50),
    Sketcher.Constraint("Perpendicular", 32, 52),
    Sketcher.Constraint("Perpendicular", 34, 54),
    Sketcher.Constraint("Perpendicular", 36, 56),
    Sketcher.Constraint("Perpendicular", 40, 60),
    Sketcher.Constraint("Perpendicular", 42, 62),
    Sketcher.Constraint("Perpendicular", 44, 64),
    Sketcher.Constraint("Perpendicular", 46, 66),
    Sketcher.Constraint("Perpendicular", 48, 68),
    Sketcher.Constraint("Perpendicular", 50, 70),
    Sketcher.Constraint("Perpendicular", 52, 72),
    Sketcher.Constraint("Perpendicular", 54, 74),
    Sketcher.Constraint("Perpendicular", 56, 76),
    Sketcher.Constraint("Perpendicular", 58, 78),
    Sketcher.Constraint("Horizontal", 36, 2, 41, 1),
    Sketcher.Constraint("Horizontal", 34, 2, 43, 2),
    Sketcher.Constraint("Horizontal", 32, 2, 45, 1),
    Sketcher.Constraint("Horizontal", 30, 2, 47, 2),
    Sketcher.Constraint("Equal", 0, 2),
    Sketcher.Constraint("Equal", 2, 4),
    Sketcher.Constraint("Equal", 4, 6),
    Sketcher.Constraint("Equal", 6, 8),
    Sketcher.Constraint("Equal", 8, 10),
    Sketcher.Constraint("Equal", 10, 12),
    Sketcher.Constraint("Equal", 12, 14),
    Sketcher.Constraint("Equal", 14, 16),
    Sketcher.Constraint("Equal", 16, 18),
    Sketcher.Constraint("Radius", 1, Q("0.500001 mm")),
    Sketcher.Constraint("DistanceY", -1, 1, 0, 2, Q("10.753499 mm")),
    Sketcher.Constraint("DistanceY", -1, 1, 16, 2, Q("2.150102 mm")),
    Sketcher.Constraint("DistanceX", 17, 1, -1, 1, Q("10.753499 mm")),
    Sketcher.Constraint("DistanceX", 36, 2, -1, 1, Q("2.150102 mm")),
    Sketcher.Constraint("DistanceX", 1, 3, -1, 1, Q("1.720779 mm")),
    Sketcher.Constraint("DistanceX", 3, 3, -1, 1, Q("3.986521 mm")),
    Sketcher.Constraint("DistanceY", -1, 1, 3, 3, Q("12.26925 mm")),
    Sketcher.Constraint("DistanceY", -1, 1, 5, 3, Q("9.801072 mm")),
    Sketcher.Constraint("DistanceX", 13, 3, -1, 1, Q("9.801072 mm")),
    Sketcher.Constraint("DistanceX", 15, 3, -1, 1, Q("12.26925 mm")),
    Sketcher.Constraint("DistanceX", 19, 3, -1, 1, Q("12.900652 mm")),
    Sketcher.Constraint("DistanceY", -1, 1, 3, 2, Q("12.271189 mm")),
    Sketcher.Constraint("DistanceX", 5, 1, -1, 1, Q("5.32301 mm")),
    Sketcher.Constraint("DistanceY", -1, 1, 11, 2, Q("7.290492 mm")),
    Sketcher.Constraint("DistanceY", -1, 1, 12, 2, Q("5.32301 mm")),
    Sketcher.Constraint("DistanceX", 9, 3, -1, 1, Q("7.778175 mm")),
])
pad1 = body.newObject("PartDesign::Pad", "Pad")
pad1.Profile = sketch1
pad1.Length = 5

doc.recompute()
